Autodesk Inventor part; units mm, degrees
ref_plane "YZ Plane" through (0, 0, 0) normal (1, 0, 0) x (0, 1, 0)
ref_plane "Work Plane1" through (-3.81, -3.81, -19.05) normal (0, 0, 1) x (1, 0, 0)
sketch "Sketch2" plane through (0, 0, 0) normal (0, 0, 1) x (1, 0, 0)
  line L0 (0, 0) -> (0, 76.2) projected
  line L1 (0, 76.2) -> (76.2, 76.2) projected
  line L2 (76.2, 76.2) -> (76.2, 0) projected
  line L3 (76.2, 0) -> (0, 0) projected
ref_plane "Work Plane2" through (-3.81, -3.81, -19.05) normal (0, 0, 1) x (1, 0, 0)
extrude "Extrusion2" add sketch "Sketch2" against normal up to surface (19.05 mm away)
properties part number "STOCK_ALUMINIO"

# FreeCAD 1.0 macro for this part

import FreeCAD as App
import Part
import Sketcher

V = App.Vector
Q = App.Units.Quantity

doc = App.newDocument("Part")
body = doc.addObject("PartDesign::Body", "Body")

sketch1 = body.newObject("Sketcher::SketchObject", "Sketch")
sketch1.AttachmentSupport = (doc.getObject("XY_Plane"), [""])
sketch1.MapMode = "FlatFace"
sketch1.addGeometry([
    Part.LineSegment(V(0, 76.2, 0), V(0, 0, 0)),
    Part.LineSegment(V(0, 0, 0), V(76.2, 0, 0)),
    Part.LineSegment(V(76.2, 0, 0), V(76.2, 76.2, 0)),
    Part.LineSegment(V(76.2, 76.2, 0), V(0, 76.2, 0)),
], False)
sketch1.addConstraint([
    Sketcher.Constraint("Coincident", 0, 2, 1, 1),
    Sketcher.Constraint("Coincident", 1, 2, 2, 1),
    Sketcher.Constraint("Coincident", 2, 2, 3, 1),
    Sketcher.Constraint("Coincident", 3, 2, 0, 1),
    Sketcher.Constraint("Vertical", 0),
    Sketcher.Constraint("Horizontal", 1),
    Sketcher.Constraint("Vertical", 2),
    Sketcher.Constraint("Horizontal", 3),
    Sketcher.Constraint("Coincident", 0, 2, -1, 1),
    Sketcher.Constraint("Equal", 3, 0),
    Sketcher.Constraint("DistanceX", 1, 1, 1, 2, Q("3 in")),
])
pad1 = body.newObject("PartDesign::Pad", "Pad")
pad1.Profile = sketch1
pad1.Length = Q("0.75 in")
pad1.Reversed = True

doc.recompute()
